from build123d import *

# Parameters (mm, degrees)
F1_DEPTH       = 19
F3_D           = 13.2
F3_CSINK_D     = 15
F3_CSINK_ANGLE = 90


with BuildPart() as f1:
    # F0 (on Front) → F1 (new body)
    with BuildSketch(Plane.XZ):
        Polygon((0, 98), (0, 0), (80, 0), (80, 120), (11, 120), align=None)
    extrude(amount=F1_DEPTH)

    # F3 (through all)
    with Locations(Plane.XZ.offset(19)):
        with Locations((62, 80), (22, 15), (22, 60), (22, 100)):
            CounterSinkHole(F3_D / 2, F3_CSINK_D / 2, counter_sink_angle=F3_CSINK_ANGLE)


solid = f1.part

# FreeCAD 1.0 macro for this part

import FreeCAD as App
import Part
import Sketcher
Q = App.Units.Quantity


def add_polygon(sketch, points):
    """Adds a closed chain of lines whose ends are joined by coincident constraints."""
    first, n = sketch.GeometryCount, len(points)
    for a, b in zip(points, points[1:] + points[:1]):
        sketch.addGeometry(Part.LineSegment(App.Vector(*a, 0), App.Vector(*b, 0)), False)
    for i in range(n):
        sketch.addConstraint(Sketcher.Constraint("Coincident", first + i, 2, first + (i + 1) % n, 1))

doc = App.newDocument("Part")
body = doc.addObject("PartDesign::Body", "Body")

# Sketch on XZ plane
sketch1 = body.newObject("Sketcher::SketchObject", "Sketch")
sketch1.AttachmentSupport = (doc.getObject("XZ_Plane"), [""])
sketch1.MapMode = "FlatFace"
add_polygon(sketch1, [(0, 98), (0, 0), (80, 0), (80, 120), (11, 120)])  # lines 0-4
sketch1.addConstraint(Sketcher.Constraint("Vertical", 0))
sketch1.addConstraint(Sketcher.Constraint("Horizontal", 1))
sketch1.addConstraint(Sketcher.Constraint("Vertical", 2))
sketch1.addConstraint(Sketcher.Constraint("Horizontal", 3))
sketch1.addConstraint(Sketcher.Constraint("Coincident", 0, 2, -1, 1))
sketch1.addConstraint(Sketcher.Constraint("DistanceX", 1, 1, 1, 2, Q("80 mm")))
sketch1.addConstraint(Sketcher.Constraint("DistanceX", 3, 2, 3, 1, Q("69 mm")))
sketch1.addConstraint(Sketcher.Constraint("DistanceY", 0, 2, 0, 1, Q("98 mm")))
sketch1.addConstraint(Sketcher.Constraint("DistanceY", 2, 1, 2, 2, Q("120 mm")))
pad1 = body.newObject("PartDesign::Pad", "Pad")
pad1.Profile = sketch1
pad1.Length = 19

# Sketch on XZ plane
sketch2 = body.newObject("Sketcher::SketchObject", "Sketch001")
sketch2.AttachmentSupport = (doc.getObject("XZ_Plane"), [""])
sketch2.MapMode = "FlatFace"
sketch2.AttachmentOffset = App.Placement(App.Vector(0, 0, 19), App.Rotation())
sketch2.addGeometry(Part.Circle(App.Vector(62, 80, 0), App.Vector(0, 0, 1), 7), False)
sketch2.addGeometry(Part.Circle(App.Vector(22, 15, 0), App.Vector(0, 0, 1), 7), False)
sketch2.addGeometry(Part.Circle(App.Vector(22, 60, 0), App.Vector(0, 0, 1), 7), False)
sketch2.addGeometry(Part.Circle(App.Vector(22, 100, 0), App.Vector(0, 0, 1), 7), False)
sketch2.addConstraint(Sketcher.Constraint("Equal", 0, 1))
sketch2.addConstraint(Sketcher.Constraint("Equal", 1, 2))
sketch2.addConstraint(Sketcher.Constraint("Equal", 2, 3))
sketch2.addConstraint(Sketcher.Constraint("Vertical", 1, 3, 2, 3))
sketch2.addConstraint(Sketcher.Constraint("Vertical", 2, 3, 3, 3))
sketch2.addConstraint(Sketcher.Constraint("Diameter", 0, Q("13.2 mm")))
sketch2.addConstraint(Sketcher.Constraint("DistanceX", -1, 1, 0, 3, Q("62 mm")))
sketch2.addConstraint(Sketcher.Constraint("DistanceY", -1, 1, 0, 3, Q("80 mm")))
sketch2.addConstraint(Sketcher.Constraint("DistanceX", -1, 1, 1, 3, Q("22 mm")))
sketch2.addConstraint(Sketcher.Constraint("DistanceY", -1, 1, 1, 3, Q("15 mm")))
sketch2.addConstraint(Sketcher.Constraint("DistanceY", -1, 1, 2, 3, Q("60 mm")))
sketch2.addConstraint(Sketcher.Constraint("DistanceY", -1, 1, 3, 3, Q("100 mm")))
doc.recompute()
hole = body.newObject("PartDesign::Hole", "Hole")
hole.Profile = sketch2
hole.ThreadType = "None"
hole.Diameter = 13.2
hole.DepthType = "ThroughAll"
hole.HoleCutType = "Countersink"
hole.HoleCutDiameter = 15
hole.HoleCutCountersinkAngle = 90

doc.recompute()
